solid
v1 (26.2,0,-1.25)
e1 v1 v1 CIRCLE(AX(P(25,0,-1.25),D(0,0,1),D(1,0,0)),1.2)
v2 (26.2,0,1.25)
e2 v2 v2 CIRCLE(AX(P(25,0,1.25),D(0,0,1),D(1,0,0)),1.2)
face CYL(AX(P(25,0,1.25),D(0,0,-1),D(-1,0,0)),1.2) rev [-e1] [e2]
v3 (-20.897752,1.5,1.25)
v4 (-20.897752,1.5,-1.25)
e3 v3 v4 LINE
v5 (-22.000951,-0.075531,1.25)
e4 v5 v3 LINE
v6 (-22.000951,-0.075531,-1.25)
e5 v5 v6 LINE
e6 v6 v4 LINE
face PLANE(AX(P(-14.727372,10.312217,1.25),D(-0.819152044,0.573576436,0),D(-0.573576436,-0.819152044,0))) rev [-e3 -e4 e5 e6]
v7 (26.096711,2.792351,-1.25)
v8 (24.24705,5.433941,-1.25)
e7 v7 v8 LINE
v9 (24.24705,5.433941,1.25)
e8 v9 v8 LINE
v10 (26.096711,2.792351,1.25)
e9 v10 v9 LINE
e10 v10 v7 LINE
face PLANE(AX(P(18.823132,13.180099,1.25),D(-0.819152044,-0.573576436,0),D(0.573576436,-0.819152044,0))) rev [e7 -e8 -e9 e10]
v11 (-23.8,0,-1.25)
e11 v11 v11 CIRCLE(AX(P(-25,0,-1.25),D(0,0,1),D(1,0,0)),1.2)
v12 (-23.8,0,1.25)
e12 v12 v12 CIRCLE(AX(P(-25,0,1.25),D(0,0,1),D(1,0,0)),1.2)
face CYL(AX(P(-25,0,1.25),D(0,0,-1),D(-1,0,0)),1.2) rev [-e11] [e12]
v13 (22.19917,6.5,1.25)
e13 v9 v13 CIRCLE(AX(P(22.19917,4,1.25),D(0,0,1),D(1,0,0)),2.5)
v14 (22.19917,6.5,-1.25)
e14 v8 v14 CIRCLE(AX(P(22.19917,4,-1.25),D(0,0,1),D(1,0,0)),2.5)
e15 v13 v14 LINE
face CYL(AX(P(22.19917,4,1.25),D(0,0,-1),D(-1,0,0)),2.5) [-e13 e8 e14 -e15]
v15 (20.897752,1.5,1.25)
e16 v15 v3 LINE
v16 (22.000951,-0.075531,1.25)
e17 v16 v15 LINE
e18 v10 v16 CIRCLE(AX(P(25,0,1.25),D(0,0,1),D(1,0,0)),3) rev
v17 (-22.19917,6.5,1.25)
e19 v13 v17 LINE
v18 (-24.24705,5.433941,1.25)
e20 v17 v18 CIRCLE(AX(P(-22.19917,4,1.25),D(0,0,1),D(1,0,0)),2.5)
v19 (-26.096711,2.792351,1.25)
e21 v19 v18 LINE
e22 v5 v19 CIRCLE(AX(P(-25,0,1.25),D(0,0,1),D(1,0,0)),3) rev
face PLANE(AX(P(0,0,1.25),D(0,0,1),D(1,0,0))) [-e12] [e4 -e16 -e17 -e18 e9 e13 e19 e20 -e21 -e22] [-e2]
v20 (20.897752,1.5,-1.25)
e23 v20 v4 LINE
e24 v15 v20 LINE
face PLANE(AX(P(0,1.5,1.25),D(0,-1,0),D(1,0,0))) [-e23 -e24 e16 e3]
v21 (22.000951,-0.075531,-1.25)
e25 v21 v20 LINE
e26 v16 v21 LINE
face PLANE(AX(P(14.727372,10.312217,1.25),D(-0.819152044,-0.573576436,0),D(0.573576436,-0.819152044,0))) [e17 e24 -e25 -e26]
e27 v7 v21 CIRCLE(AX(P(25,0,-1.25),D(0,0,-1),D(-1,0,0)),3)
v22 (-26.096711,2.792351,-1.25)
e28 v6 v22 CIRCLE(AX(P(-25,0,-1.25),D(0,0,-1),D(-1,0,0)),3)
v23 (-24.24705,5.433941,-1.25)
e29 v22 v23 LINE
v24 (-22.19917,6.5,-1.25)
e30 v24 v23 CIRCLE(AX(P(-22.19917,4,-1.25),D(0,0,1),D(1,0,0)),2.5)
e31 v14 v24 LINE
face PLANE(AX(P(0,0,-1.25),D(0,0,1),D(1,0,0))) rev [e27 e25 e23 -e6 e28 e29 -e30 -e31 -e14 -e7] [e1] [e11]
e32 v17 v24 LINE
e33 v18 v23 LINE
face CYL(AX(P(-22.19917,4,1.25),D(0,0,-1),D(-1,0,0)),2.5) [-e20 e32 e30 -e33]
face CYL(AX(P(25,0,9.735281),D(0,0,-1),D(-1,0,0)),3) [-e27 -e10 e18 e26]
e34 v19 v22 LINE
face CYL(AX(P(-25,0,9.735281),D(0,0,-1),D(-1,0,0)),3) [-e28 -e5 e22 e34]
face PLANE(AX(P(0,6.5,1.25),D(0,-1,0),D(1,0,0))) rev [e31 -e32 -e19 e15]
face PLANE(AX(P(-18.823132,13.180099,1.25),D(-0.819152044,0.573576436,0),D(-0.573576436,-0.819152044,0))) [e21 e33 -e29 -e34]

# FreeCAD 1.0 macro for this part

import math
import FreeCAD as App
import Part
import Sketcher

V = App.Vector
Q = App.Units.Quantity

doc = App.newDocument("Part")
body = doc.addObject("PartDesign::Body", "Body")

# Sketch on XY plane
sketch1 = body.newObject("Sketcher::SketchObject", "Sketch")
sketch1.AttachmentSupport = (doc.getObject("XY_Plane"), [""])
sketch1.MapMode = "FlatFace"
sketch1.addGeometry([
    Part.LineSegment(V(-20.9, 1.5, 0), V(20.9, 1.5, 0)),  # 0
    Part.LineSegment(V(20.9, 1.5, 0), V(23, -1.4, 0)),  # 1
    Part.ArcOfCircle(Part.Circle(V(25, 0, 0), V(0, 0, 1), 2.5), math.radians(-145), math.radians(35)),  # 2
    Part.LineSegment(V(27, 1.4, 0), V(24.2, 5.4, 0)),  # 3
    Part.ArcOfCircle(Part.Circle(V(22.2, 4, 0), V(0, 0, 1), 2.5), math.radians(35), math.radians(90)),  # 4
    Part.LineSegment(V(22.2, 6.5, 0), V(-22.2, 6.5, 0)),  # 5
    Part.ArcOfCircle(Part.Circle(V(-22.2, 4, 0), V(0, 0, 1), 2.5), math.radians(90), math.radians(145)),  # 6
    Part.LineSegment(V(-24.2, 5.4, 0), V(-27, 1.4, 0)),  # 7
    Part.ArcOfCircle(Part.Circle(V(-25, 0, 0), V(0, 0, 1), 2.5), math.radians(145), math.radians(325)),  # 8
    Part.LineSegment(V(-23, -1.4, 0), V(-20.9, 1.5, 0)),  # 9
    Part.Circle(V(-25, 0, 0), V(0, 0, 1), 1.2),  # 10
    Part.Circle(V(25, 0, 0), V(0, 0, 1), 1.2),  # 11
], False)
sketch1.addConstraint([
    Sketcher.Constraint("Coincident", 0, 2, 1, 1),
    Sketcher.Constraint("Tangent", 1, 2, 2, 1),
    Sketcher.Constraint("Tangent", 2, 2, 3, 1),
    Sketcher.Constraint("Tangent", 3, 2, 4, 1),
    Sketcher.Constraint("Tangent", 4, 2, 5, 1),
    Sketcher.Constraint("Tangent", 5, 2, 6, 1),
    Sketcher.Constraint("Tangent", 6, 2, 7, 1),
    Sketcher.Constraint("Tangent", 7, 2, 8, 1),
    Sketcher.Constraint("Tangent", 8, 2, 9, 1),
    Sketcher.Constraint("Coincident", 9, 2, 0, 1),
    Sketcher.Constraint("Horizontal", 0),
    Sketcher.Constraint("Horizontal", 5),
    Sketcher.Constraint("Coincident", 10, 3, 8, 3),
    Sketcher.Constraint("Coincident", 11, 3, 2, 3),
    Sketcher.Constraint("Equal", 2, 4),
    Sketcher.Constraint("Equal", 4, 6),
    Sketcher.Constraint("Equal", 6, 8),
    Sketcher.Constraint("Equal", 10, 11),
    Sketcher.Constraint("Symmetric", 2, 3, 8, 3, -1, 1),
    Sketcher.Constraint("Symmetric", 3, 2, 6, 2, -2),
    Sketcher.Constraint("Parallel", 1, 3),
    Sketcher.Constraint("Parallel", 7, 9),
    Sketcher.Constraint("Diameter", 10, 2.4),
    Sketcher.Constraint("Radius", 2, 2.5),
    Sketcher.Constraint("Angle", 1, Q("-55 deg")),
    Sketcher.Constraint("DistanceX", -1, 1, 2, 3, 25.0),
    Sketcher.Constraint("DistanceY", -1, 1, 4, 3, 4.0),
    Sketcher.Constraint("DistanceY", 0, 2, 4, 2, 5.0),
])
pad1 = body.newObject("PartDesign::Pad", "Pad")
pad1.Profile = sketch1
pad1.Length = 2.5
pad1.Midplane = True

# Sketch on XY plane
sketch2 = body.newObject("Sketcher::SketchObject", "Sketch001")
sketch2.AttachmentSupport = (doc.getObject("XY_Plane"), [""])
sketch2.MapMode = "FlatFace"
sketch2.AttachmentOffset = App.Placement(V(0, 0, -1.25), App.Rotation())
sketch2.addGeometry([
    Part.Circle(V(-25, 0, 0), V(0, 0, 1), 3),
    Part.Circle(V(-25, 0, 0), V(0, 0, 1), 1.2),
    Part.Circle(V(25, 0, 0), V(0, 0, 1), 3),
    Part.Circle(V(25, 0, 0), V(0, 0, 1), 1.2),
], False)
sketch2.addConstraint([
    Sketcher.Constraint("Coincident", 1, 3, 0, 3),
    Sketcher.Constraint("Coincident", 3, 3, 2, 3),
    Sketcher.Constraint("Equal", 0, 2),
    Sketcher.Constraint("Equal", 1, 3),
    Sketcher.Constraint("Symmetric", 0, 3, 2, 3, -1, 1),
    Sketcher.Constraint("PointOnObject", 0, 3, -1),
    Sketcher.Constraint("Diameter", 0, 6.0),
    Sketcher.Constraint("Diameter", 1, 2.4),
    Sketcher.Constraint("DistanceX", 0, 3, -1, 1, 25.0),
])
pad2 = body.newObject("PartDesign::Pad", "Pad001")
pad2.Profile = sketch2
pad2.Length = 2.5

doc.recompute()
